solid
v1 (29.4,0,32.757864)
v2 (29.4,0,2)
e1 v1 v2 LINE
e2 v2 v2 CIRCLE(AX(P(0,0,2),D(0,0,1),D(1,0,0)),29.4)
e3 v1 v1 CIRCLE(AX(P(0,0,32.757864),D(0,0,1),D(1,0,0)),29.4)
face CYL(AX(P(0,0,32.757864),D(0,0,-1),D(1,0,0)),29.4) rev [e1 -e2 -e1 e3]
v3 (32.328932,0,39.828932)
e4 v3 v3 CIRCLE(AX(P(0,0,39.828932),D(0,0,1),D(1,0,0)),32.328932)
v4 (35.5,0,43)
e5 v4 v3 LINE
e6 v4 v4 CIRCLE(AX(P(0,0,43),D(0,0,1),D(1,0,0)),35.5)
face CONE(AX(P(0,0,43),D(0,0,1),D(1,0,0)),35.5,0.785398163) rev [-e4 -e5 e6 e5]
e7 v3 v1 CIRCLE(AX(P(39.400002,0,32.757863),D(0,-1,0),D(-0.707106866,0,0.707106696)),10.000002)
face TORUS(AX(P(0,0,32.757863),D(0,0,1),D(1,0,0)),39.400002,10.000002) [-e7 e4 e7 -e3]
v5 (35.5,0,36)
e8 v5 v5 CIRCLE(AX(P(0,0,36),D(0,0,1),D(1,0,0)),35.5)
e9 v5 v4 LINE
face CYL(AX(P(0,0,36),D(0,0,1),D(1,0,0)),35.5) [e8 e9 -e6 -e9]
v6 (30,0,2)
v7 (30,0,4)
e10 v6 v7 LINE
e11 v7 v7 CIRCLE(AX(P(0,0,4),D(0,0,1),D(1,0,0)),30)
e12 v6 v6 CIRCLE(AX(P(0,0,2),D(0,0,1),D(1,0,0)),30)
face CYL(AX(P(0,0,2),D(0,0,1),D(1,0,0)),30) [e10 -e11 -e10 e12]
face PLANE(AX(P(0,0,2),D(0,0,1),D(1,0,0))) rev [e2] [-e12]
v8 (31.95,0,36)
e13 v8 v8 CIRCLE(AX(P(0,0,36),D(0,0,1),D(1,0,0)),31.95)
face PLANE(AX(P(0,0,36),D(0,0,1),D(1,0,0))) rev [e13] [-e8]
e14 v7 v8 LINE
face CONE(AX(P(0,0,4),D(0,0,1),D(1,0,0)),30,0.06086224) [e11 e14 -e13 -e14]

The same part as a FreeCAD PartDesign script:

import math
import FreeCAD as App
import Part
import Sketcher
Q = App.Units.Quantity

doc = App.newDocument("Part")
params = doc.addObject("Spreadsheet::Sheet", "Params")
for row, (alias, value) in enumerate([
    ("sketch1_height", "7 mm"),
    ("sketch1_height2", "2 mm"),
    ("sketch1_width", "0.6 mm"),
    ("sketch1_width2", "3.55 mm"),
    ("revolution_angle", "360 deg"),
], start=1):
    params.set(f"A{row}", alias)
    params.set(f"B{row}", "=" + value)
    params.setAlias(f"B{row}", alias)

body = doc.addObject("PartDesign::Body", "Body")

# Sketch on XZ plane
sketch1 = doc.addObject("Sketcher::SketchObject", "Sketch")
body.addObject(sketch1)
sketch1.AttachmentSupport = (doc.XZ_Plane, [""])
sketch1.MapMode = "FlatFace"
sketch1.addGeometry(Part.LineSegment(App.Vector(31.95, 36, 0), App.Vector(35.5, 36, 0)), False)
sketch1.addGeometry(Part.LineSegment(App.Vector(35.5, 36, 0), App.Vector(35.5, 43, 0)), False)
sketch1.addGeometry(Part.LineSegment(App.Vector(35.5, 43, 0), App.Vector(32.328932, 39.828932, 0)), False)
sketch1.addGeometry(Part.ArcOfCircle(Part.Circle(App.Vector(39.400002, 32.757863, 0), App.Vector(0, 0, 1), 10.000002), math.radians(135.000007), math.radians(179.999997)), False)
sketch1.addGeometry(Part.LineSegment(App.Vector(29.4, 32.757864, 0), App.Vector(29.4, 2, 0)), False)
sketch1.addGeometry(Part.LineSegment(App.Vector(29.4, 2, 0), App.Vector(30, 2, 0)), False)
sketch1.addGeometry(Part.LineSegment(App.Vector(30, 2, 0), App.Vector(30, 4, 0)), False)
sketch1.addGeometry(Part.LineSegment(App.Vector(30, 4, 0), App.Vector(31.95, 36, 0)), False)
sketch1.addConstraint(Sketcher.Constraint("Coincident", 0, 2, 1, 1))
sketch1.addConstraint(Sketcher.Constraint("Coincident", 1, 2, 2, 1))
sketch1.addConstraint(Sketcher.Constraint("Tangent", 2, 2, 3, 1))
sketch1.addConstraint(Sketcher.Constraint("Tangent", 3, 2, 4, 1))
sketch1.addConstraint(Sketcher.Constraint("Coincident", 4, 2, 5, 1))
sketch1.addConstraint(Sketcher.Constraint("Coincident", 5, 2, 6, 1))
sketch1.addConstraint(Sketcher.Constraint("Coincident", 6, 2, 7, 1))
sketch1.addConstraint(Sketcher.Constraint("Coincident", 7, 2, 0, 1))
sketch1.addConstraint(Sketcher.Constraint("Horizontal", 0))
sketch1.addConstraint(Sketcher.Constraint("Vertical", 1))
sketch1.addConstraint(Sketcher.Constraint("Vertical", 4))
sketch1.addConstraint(Sketcher.Constraint("Horizontal", 5))
sketch1.addConstraint(Sketcher.Constraint("Vertical", 6))
sketch1.addConstraint(Sketcher.Constraint("DistanceY", 1, 1, 1, 2, 7.0))
sketch1.addConstraint(Sketcher.Constraint("DistanceY", 6, 1, 6, 2, 2.0))
sketch1.addConstraint(Sketcher.Constraint("Angle", 2, Q("-135 deg")))
sketch1.addConstraint(Sketcher.Constraint("DistanceX", 5, 1, 5, 2, 0.6))
sketch1.addConstraint(Sketcher.Constraint("DistanceY", -1, 1, 0, 2, 36.0))
sketch1.addConstraint(Sketcher.Constraint("DistanceY", -1, 1, 4, 2, 2.0))
sketch1.addConstraint(Sketcher.Constraint("DistanceX", -1, 1, 5, 2, 30.0))
sketch1.addConstraint(Sketcher.Constraint("DistanceX", 0, 1, 0, 2, 3.55))
sketch1.addConstraint(Sketcher.Constraint("DistanceX", -1, 1, 0, 2, 35.5))
sketch1.addConstraint(Sketcher.Constraint("Radius", 3, 10.000002))
sketch1.setExpression("Constraints[13]", "Params.sketch1_height")
sketch1.setExpression("Constraints[14]", "Params.sketch1_height2")
sketch1.setExpression("Constraints[16]", "Params.sketch1_width")
sketch1.setExpression("Constraints[20]", "Params.sketch1_width2")
revolution = doc.addObject("PartDesign::Revolution", "Revolution")
body.addObject(revolution)
revolution.Profile = sketch1
revolution.ReferenceAxis = (sketch1, ["V_Axis"])
revolution.setExpression("Angle", "Params.revolution_angle")

doc.recompute()
